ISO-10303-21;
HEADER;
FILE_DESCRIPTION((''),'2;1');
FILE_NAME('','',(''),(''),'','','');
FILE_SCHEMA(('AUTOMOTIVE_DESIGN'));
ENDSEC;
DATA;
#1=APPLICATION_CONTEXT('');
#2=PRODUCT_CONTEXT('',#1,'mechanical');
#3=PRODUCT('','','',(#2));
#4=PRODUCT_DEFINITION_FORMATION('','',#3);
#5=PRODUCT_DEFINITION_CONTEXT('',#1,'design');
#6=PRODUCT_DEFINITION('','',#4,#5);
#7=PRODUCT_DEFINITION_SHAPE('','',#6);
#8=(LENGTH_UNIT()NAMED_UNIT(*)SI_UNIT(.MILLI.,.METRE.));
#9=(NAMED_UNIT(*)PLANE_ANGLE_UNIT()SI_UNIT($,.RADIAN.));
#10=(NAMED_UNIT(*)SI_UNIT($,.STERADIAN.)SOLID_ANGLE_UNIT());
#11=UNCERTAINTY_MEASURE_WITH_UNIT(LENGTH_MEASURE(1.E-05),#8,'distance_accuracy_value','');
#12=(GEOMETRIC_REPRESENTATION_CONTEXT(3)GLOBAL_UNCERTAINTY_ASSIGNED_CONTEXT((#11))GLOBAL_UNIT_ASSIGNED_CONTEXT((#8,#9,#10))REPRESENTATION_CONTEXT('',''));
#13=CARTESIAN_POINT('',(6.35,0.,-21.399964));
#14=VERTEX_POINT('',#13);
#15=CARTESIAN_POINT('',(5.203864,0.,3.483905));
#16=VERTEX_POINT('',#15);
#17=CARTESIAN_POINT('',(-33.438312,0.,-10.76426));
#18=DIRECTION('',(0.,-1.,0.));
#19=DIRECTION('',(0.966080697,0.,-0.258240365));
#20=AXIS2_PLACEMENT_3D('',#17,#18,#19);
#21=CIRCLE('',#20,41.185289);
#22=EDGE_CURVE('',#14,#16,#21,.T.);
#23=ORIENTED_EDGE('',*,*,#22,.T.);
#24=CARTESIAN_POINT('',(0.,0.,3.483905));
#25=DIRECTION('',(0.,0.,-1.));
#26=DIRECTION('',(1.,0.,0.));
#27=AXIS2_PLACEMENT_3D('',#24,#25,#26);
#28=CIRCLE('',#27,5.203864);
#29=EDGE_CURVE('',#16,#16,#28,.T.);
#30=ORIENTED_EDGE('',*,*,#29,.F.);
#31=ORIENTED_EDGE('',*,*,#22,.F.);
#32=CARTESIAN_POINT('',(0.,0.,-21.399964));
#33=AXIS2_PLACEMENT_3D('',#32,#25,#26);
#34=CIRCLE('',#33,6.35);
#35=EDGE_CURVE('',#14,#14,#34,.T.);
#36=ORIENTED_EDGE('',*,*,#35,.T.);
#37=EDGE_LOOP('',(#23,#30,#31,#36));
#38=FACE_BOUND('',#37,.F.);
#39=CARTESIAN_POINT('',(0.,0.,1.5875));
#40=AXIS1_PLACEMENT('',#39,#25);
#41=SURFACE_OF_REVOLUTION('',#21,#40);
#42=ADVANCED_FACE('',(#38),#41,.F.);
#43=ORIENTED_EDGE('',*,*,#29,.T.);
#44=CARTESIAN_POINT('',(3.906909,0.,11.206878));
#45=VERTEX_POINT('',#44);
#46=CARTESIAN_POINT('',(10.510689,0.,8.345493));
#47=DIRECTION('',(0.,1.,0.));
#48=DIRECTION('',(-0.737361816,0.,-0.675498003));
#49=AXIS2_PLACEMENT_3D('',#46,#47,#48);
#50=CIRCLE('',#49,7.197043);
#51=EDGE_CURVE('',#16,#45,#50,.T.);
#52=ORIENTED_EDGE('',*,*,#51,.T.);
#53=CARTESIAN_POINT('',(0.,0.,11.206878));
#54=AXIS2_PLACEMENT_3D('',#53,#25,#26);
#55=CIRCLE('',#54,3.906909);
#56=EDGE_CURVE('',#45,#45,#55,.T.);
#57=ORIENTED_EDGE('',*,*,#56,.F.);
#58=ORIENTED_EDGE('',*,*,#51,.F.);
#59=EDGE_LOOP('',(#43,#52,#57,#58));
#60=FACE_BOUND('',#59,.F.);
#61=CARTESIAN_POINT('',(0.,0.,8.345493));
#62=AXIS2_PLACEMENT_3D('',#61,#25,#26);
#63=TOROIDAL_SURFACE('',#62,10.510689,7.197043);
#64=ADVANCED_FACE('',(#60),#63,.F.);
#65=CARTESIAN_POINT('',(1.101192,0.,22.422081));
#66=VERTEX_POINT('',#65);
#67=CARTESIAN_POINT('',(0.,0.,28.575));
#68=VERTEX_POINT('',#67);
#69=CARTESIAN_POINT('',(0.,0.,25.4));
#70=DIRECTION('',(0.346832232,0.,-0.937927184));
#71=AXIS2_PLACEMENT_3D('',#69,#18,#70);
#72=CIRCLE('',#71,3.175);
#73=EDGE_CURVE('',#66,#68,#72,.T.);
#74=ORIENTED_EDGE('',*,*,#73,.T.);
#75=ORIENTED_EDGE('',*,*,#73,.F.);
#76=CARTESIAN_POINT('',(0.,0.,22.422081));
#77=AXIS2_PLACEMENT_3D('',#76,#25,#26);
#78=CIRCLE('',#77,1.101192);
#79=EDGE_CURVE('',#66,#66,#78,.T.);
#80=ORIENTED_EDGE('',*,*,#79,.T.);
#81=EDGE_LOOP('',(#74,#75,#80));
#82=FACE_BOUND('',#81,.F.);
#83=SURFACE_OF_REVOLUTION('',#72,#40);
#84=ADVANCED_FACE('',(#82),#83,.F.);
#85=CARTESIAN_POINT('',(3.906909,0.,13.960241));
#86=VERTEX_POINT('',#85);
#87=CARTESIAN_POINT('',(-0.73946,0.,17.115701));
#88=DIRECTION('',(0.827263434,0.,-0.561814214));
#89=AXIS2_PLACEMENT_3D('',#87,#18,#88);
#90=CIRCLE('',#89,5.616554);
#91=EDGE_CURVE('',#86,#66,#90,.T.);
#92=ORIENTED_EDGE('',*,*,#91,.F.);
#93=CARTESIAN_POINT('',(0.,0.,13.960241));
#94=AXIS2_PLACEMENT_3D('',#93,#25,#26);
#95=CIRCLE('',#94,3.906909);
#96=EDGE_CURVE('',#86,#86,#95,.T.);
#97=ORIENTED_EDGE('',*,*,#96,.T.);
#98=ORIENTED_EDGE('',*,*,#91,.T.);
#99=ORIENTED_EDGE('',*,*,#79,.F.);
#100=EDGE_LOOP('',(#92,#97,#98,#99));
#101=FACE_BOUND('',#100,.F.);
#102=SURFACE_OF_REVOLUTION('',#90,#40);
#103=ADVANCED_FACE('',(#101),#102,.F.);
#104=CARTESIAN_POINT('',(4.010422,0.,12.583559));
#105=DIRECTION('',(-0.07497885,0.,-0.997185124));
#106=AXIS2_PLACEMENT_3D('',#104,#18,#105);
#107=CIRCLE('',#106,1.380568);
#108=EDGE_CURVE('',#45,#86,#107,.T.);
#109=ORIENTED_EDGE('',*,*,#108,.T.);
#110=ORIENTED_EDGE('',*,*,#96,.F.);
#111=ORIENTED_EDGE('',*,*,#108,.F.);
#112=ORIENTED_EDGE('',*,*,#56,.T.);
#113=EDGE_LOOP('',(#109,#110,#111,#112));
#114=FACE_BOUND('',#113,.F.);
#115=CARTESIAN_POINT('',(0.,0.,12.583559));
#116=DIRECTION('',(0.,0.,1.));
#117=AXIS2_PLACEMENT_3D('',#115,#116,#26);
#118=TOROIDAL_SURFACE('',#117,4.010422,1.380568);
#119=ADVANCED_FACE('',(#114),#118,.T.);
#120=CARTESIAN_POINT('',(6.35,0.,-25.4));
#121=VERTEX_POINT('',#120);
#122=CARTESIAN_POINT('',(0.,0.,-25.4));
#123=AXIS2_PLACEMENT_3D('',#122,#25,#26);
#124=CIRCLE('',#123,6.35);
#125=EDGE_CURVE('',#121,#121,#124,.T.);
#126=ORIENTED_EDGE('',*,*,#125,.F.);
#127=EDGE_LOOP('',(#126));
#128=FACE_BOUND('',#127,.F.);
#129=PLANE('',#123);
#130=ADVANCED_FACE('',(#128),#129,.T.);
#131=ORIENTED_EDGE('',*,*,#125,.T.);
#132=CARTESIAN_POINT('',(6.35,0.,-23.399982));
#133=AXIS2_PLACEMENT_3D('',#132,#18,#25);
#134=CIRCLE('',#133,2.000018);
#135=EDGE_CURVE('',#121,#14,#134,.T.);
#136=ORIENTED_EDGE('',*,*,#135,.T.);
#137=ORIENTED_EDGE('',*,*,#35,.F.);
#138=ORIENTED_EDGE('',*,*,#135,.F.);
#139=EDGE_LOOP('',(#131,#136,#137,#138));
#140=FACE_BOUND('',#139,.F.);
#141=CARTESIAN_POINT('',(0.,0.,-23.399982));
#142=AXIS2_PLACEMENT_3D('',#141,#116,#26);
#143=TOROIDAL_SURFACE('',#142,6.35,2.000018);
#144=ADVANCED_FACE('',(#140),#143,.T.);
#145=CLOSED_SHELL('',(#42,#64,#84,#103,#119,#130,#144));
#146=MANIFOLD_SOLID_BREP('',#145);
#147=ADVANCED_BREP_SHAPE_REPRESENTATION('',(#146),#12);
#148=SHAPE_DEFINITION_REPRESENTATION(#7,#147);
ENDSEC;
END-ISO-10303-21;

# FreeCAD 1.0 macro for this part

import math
import FreeCAD as App
import Part
import Sketcher
Q = App.Units.Quantity

doc = App.newDocument("Part")
params = doc.addObject("Spreadsheet::Sheet", "Params")
for row, (alias, value) in enumerate([
    ("sketch1_radius", "0.125 in"),
    ("sketch1_width", "0.25 in"),
    ("revolution_angle", "360 deg"),
], start=1):
    params.set(f"A{row}", alias)
    params.set(f"B{row}", "=" + value)
    params.setAlias(f"B{row}", alias)

body = doc.addObject("PartDesign::Body", "Body")

# Sketch on XZ plane
sketch1 = body.newObject("Sketcher::SketchObject", "Sketch")
sketch1.AttachmentSupport = (doc.getObject("XZ_Plane"), [""])
sketch1.MapMode = "FlatFace"
sketch1.addGeometry(Part.ArcOfCircle(Part.Circle(App.Vector(-0.73946, 17.115701, 0), App.Vector(0, 0, 1), 5.616554), math.radians(-34.181356), math.radians(70.869602)), False)
sketch1.addGeometry(Part.ArcOfCircle(Part.Circle(App.Vector(0, 25.4, 0), App.Vector(0, 0, 1), 3.175), math.radians(-69.706318), math.radians(89.999993)), False)
sketch1.addGeometry(Part.LineSegment(App.Vector(0, 28.575, 0), App.Vector(0, -25.4, 0)), False)
sketch1.addGeometry(Part.LineSegment(App.Vector(0, -25.4, 0), App.Vector(6.35, -25.4, 0)), False)
sketch1.addGeometry(Part.ArcOfCircle(Part.Circle(App.Vector(6.35, -23.399982, 0), App.Vector(0, 0, 1), 2.000018), math.radians(-90), math.radians(90)), False)
sketch1.addGeometry(Part.ArcOfCircle(Part.Circle(App.Vector(-33.438312, -10.76426, 0), App.Vector(0, 0, 1), 41.185289), math.radians(-14.965677), math.radians(20.239968)), False)
sketch1.addGeometry(Part.ArcOfCircle(Part.Circle(App.Vector(10.510689, 8.345493, 0), App.Vector(0, 0, 1), 7.197043), math.radians(156.573157), math.radians(222.492835)), False)
sketch1.addGeometry(Part.ArcOfCircle(Part.Circle(App.Vector(4.010422, 12.583559, 0), App.Vector(0, 0, 1), 1.380568), math.radians(-94.300007), math.radians(94.300007)), False)
sketch1.addConstraint(Sketcher.Constraint("Coincident", 0, 2, 1, 1))
sketch1.addConstraint(Sketcher.Constraint("Coincident", 1, 2, 2, 1))
sketch1.addConstraint(Sketcher.Constraint("Coincident", 2, 2, 3, 1))
sketch1.addConstraint(Sketcher.Constraint("Tangent", 3, 2, 4, 1))
sketch1.addConstraint(Sketcher.Constraint("Coincident", 4, 2, 5, 1))
sketch1.addConstraint(Sketcher.Constraint("Coincident", 5, 2, 6, 2))
sketch1.addConstraint(Sketcher.Constraint("Coincident", 6, 1, 7, 1))
sketch1.addConstraint(Sketcher.Constraint("Coincident", 7, 2, 0, 1))
sketch1.addConstraint(Sketcher.Constraint("Vertical", 2))
sketch1.addConstraint(Sketcher.Constraint("Horizontal", 3))
sketch1.addConstraint(Sketcher.Constraint("PointOnObject", 1, 3, -2))
sketch1.addConstraint(Sketcher.Constraint("PointOnObject", 1, 2, -2))
sketch1.addConstraint(Sketcher.Constraint("Vertical", 3, 2, 4, 2))
sketch1.addConstraint(Sketcher.Constraint("Vertical", 6, 1, 7, 2))
sketch1.addConstraint(Sketcher.Constraint("DistanceY", -1, 1, 1, 3, Q("1 in")))
sketch1.addConstraint(Sketcher.Constraint("DistanceY", 2, 2, -1, 1, Q("1 in")))
sketch1.addConstraint(Sketcher.Constraint("Radius", 1, Q("0.125 in")))
sketch1.addConstraint(Sketcher.Constraint("DistanceX", 3, 1, 3, 2, Q("0.25 in")))
sketch1.addConstraint(Sketcher.Constraint("Radius", 5, Q("41.185289 mm")))
sketch1.addConstraint(Sketcher.Constraint("Radius", 0, Q("5.616554 mm")))
sketch1.addConstraint(Sketcher.Constraint("Radius", 4, Q("2.000018 mm")))
sketch1.addConstraint(Sketcher.Constraint("Radius", 6, Q("7.197043 mm")))
sketch1.addConstraint(Sketcher.Constraint("Radius", 7, Q("1.380568 mm")))
sketch1.addConstraint(Sketcher.Constraint("DistanceY", 6, 1, 7, 3, Q("0.0542001 in")))
sketch1.addConstraint(Sketcher.Constraint("DistanceY", -1, 1, 0, 3, Q("17.115701 mm")))
sketch1.addConstraint(Sketcher.Constraint("DistanceX", 5, 3, 6, 3, Q("43.949001 mm")))
sketch1.addConstraint(Sketcher.Constraint("DistanceX", 0, 3, -1, 1, Q("0.73946 mm")))
sketch1.addConstraint(Sketcher.Constraint("DistanceY", 5, 3, -1, 1, Q("10.76426 mm")))
sketch1.addConstraint(Sketcher.Constraint("DistanceY", -1, 1, 7, 3, Q("12.583559 mm")))
sketch1.setExpression("Constraints[16]", "Params.sketch1_radius")
sketch1.setExpression("Constraints[17]", "Params.sketch1_width")
revolution = body.newObject("PartDesign::Revolution", "Revolution")
revolution.Profile = sketch1
revolution.ReferenceAxis = (sketch1, ["V_Axis"])
revolution.setExpression("Angle", "Params.revolution_angle")

doc.recompute()
